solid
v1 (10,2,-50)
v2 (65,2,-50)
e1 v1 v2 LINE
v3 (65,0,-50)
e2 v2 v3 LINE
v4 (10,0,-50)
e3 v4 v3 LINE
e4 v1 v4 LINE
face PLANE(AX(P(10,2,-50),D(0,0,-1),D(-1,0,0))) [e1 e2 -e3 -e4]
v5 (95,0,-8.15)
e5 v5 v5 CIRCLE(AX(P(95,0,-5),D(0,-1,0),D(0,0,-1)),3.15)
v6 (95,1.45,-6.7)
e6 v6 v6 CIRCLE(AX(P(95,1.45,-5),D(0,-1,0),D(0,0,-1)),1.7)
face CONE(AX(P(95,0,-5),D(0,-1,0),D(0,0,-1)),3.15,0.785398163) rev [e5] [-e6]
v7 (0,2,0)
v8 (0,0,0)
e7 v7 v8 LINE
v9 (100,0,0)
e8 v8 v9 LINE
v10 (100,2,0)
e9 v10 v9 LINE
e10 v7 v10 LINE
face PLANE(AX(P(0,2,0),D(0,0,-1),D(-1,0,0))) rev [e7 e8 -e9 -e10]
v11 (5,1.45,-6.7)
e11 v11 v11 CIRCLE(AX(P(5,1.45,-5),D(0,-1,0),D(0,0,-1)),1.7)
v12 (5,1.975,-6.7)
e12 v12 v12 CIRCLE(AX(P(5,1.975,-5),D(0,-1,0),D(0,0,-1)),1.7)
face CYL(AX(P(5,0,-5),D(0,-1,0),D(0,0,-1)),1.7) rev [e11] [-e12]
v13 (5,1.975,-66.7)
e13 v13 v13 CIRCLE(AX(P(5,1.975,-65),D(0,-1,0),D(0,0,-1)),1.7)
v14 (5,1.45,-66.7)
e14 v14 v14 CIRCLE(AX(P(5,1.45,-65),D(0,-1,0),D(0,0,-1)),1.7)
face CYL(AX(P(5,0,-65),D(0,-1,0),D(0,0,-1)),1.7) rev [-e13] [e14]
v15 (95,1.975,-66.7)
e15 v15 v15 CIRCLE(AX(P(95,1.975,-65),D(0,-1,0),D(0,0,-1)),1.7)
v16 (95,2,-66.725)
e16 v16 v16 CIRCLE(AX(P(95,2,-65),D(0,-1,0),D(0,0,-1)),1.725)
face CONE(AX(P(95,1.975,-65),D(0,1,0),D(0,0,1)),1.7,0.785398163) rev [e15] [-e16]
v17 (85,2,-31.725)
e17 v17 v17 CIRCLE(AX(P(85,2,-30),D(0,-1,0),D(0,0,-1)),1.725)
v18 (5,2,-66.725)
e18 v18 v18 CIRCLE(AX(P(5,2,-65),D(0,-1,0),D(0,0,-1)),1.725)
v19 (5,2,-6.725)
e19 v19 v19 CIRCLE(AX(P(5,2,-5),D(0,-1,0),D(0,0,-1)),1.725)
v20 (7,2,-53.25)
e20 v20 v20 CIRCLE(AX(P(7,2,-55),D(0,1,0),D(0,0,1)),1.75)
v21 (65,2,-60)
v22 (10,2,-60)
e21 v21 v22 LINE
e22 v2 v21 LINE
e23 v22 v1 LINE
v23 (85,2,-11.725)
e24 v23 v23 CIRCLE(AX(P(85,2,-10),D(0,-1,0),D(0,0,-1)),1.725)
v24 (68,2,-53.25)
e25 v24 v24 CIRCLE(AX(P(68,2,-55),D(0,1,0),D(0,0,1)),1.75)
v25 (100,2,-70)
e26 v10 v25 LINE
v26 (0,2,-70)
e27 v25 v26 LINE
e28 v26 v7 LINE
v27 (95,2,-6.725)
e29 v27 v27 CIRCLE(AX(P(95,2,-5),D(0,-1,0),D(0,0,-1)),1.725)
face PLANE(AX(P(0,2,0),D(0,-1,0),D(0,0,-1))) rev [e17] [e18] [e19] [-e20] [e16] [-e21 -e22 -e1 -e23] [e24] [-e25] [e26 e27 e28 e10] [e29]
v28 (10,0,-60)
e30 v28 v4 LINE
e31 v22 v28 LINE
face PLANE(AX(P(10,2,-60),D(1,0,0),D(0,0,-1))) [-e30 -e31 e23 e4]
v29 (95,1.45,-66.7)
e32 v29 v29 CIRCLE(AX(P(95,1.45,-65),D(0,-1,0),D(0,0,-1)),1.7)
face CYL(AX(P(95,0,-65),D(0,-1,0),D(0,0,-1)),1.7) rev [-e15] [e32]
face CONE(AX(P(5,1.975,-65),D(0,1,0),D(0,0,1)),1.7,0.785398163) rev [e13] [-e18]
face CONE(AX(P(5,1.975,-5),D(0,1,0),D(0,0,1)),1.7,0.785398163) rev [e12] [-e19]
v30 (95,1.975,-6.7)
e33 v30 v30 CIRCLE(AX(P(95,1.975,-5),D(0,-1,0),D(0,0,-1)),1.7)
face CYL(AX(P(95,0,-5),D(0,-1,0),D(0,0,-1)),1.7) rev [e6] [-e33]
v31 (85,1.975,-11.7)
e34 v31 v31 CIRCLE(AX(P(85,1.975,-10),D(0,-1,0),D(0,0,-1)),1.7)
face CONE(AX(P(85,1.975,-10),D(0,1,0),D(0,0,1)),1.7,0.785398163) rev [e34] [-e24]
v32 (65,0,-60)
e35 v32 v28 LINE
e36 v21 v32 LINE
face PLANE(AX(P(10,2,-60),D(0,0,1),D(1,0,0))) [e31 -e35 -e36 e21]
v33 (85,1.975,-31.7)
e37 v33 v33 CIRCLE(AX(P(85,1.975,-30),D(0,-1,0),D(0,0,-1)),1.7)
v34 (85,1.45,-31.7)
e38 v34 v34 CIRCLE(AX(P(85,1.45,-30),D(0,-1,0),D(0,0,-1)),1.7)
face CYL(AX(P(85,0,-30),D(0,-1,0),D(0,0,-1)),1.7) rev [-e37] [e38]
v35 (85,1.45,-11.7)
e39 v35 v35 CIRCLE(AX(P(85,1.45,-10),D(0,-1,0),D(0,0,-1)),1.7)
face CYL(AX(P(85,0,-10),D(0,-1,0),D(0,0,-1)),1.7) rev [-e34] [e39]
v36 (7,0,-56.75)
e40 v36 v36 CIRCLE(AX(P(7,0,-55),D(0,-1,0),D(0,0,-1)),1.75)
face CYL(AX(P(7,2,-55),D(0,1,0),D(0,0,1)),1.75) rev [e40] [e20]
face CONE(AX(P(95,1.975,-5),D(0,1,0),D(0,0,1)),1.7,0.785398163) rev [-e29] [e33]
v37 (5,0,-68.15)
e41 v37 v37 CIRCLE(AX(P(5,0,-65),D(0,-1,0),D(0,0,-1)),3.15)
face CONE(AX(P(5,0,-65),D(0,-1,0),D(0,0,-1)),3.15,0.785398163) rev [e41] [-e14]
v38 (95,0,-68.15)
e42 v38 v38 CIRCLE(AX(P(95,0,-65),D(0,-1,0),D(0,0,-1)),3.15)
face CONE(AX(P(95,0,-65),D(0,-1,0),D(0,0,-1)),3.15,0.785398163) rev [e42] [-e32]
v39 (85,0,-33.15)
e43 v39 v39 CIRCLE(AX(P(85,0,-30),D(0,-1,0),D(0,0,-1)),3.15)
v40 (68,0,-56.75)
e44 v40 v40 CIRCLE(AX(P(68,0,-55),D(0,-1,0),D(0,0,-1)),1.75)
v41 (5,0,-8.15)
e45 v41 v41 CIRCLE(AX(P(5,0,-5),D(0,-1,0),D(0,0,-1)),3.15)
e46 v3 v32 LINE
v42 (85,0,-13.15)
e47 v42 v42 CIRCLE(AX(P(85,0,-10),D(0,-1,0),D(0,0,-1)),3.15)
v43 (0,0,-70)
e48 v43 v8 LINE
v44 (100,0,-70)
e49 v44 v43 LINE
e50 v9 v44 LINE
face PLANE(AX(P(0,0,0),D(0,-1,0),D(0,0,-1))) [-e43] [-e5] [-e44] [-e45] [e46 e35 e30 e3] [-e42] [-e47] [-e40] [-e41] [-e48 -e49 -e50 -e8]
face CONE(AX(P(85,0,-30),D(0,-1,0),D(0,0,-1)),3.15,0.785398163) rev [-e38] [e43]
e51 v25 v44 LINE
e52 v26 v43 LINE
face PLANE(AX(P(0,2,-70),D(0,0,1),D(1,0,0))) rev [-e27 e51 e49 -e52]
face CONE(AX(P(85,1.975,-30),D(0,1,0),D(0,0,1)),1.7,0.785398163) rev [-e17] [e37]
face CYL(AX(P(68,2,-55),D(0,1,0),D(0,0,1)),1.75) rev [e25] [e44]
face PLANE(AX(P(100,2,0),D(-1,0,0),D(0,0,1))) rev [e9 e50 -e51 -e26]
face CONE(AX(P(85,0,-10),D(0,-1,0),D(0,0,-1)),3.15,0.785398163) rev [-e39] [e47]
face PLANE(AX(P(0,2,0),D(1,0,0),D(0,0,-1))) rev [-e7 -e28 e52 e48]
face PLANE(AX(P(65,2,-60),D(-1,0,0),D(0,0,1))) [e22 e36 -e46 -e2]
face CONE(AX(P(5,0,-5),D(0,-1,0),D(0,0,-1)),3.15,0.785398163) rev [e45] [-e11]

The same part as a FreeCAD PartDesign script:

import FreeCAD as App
import Part
import Sketcher
from FreeCAD import Vector
Q = App.Units.Quantity

doc = App.newDocument("Part")
body = doc.addObject("PartDesign::Body", "Body")

# Sketch on XZ plane
sketch1 = doc.addObject("Sketcher::SketchObject", "Sketch")
body.addObject(sketch1)
sketch1.AttachmentSupport = (doc.XZ_Plane, [""])
sketch1.MapMode = "FlatFace"
sketch1.addGeometry([
    Part.LineSegment(Vector(0, -70, 0), Vector(0, 0, 0)),  # 0
    Part.LineSegment(Vector(0, 0, 0), Vector(100, 0, 0)),  # 1
    Part.LineSegment(Vector(100, 0, 0), Vector(100, -70, 0)),  # 2
    Part.LineSegment(Vector(100, -70, 0), Vector(0, -70, 0)),  # 3
    Part.LineSegment(Vector(65, -50, 0), Vector(10, -50, 0)),  # 4
    Part.LineSegment(Vector(10, -50, 0), Vector(10, -60, 0)),  # 5
    Part.LineSegment(Vector(10, -60, 0), Vector(65, -60, 0)),  # 6
    Part.LineSegment(Vector(65, -60, 0), Vector(65, -50, 0)),  # 7
], False)
sketch1.addConstraint([
    Sketcher.Constraint("Coincident", 0, 2, 1, 1),
    Sketcher.Constraint("Coincident", 1, 2, 2, 1),
    Sketcher.Constraint("Coincident", 2, 2, 3, 1),
    Sketcher.Constraint("Coincident", 3, 2, 0, 1),
    Sketcher.Constraint("Coincident", 4, 2, 5, 1),
    Sketcher.Constraint("Coincident", 5, 2, 6, 1),
    Sketcher.Constraint("Coincident", 6, 2, 7, 1),
    Sketcher.Constraint("Coincident", 7, 2, 4, 1),
    Sketcher.Constraint("Vertical", 0),
    Sketcher.Constraint("Horizontal", 1),
    Sketcher.Constraint("Vertical", 2),
    Sketcher.Constraint("Horizontal", 3),
    Sketcher.Constraint("Horizontal", 4),
    Sketcher.Constraint("Vertical", 5),
    Sketcher.Constraint("Horizontal", 6),
    Sketcher.Constraint("Vertical", 7),
    Sketcher.Constraint("Coincident", 0, 2, -1, 1),
    Sketcher.Constraint("DistanceX", 1, 1, 1, 2, 100.0),
    Sketcher.Constraint("DistanceX", 4, 2, 4, 1, 55.0),
    Sketcher.Constraint("DistanceY", 0, 1, 0, 2, 70.0),
    Sketcher.Constraint("DistanceY", 5, 2, 5, 1, 10.0),
    Sketcher.Constraint("DistanceX", -1, 1, 4, 2, 10.0),
    Sketcher.Constraint("DistanceY", 4, 2, -1, 1, 50.0),
])
pad1 = doc.addObject("PartDesign::Pad", "Pad")
body.addObject(pad1)
pad1.Profile = sketch1
pad1.Length = 2
pad1.Reversed = True

# Sketch on XZ plane
sketch2 = doc.addObject("Sketcher::SketchObject", "Sketch001")
body.addObject(sketch2)
sketch2.AttachmentSupport = (doc.XZ_Plane, [""])
sketch2.MapMode = "FlatFace"
sketch2.AttachmentOffset = App.Placement(Vector(0, 0, -2), App.Rotation())
sketch2.addGeometry([
    Part.Circle(Vector(7, -55, 0), Vector(0, 0, 1), 1.8),
    Part.Circle(Vector(68, -55, 0), Vector(0, 0, 1), 1.8),
], False)
sketch2.addConstraint([
    Sketcher.Constraint("Equal", 0, 1),
    Sketcher.Constraint("Horizontal", 0, 3, 1, 3),
    Sketcher.Constraint("Diameter", 0, 3.5),
    Sketcher.Constraint("DistanceX", -1, 1, 0, 3, 7.0),
    Sketcher.Constraint("DistanceY", 0, 3, -1, 1, 55.0),
    Sketcher.Constraint("DistanceX", -1, 1, 1, 3, 68.0),
])
doc.recompute()
hole = doc.addObject("PartDesign::Hole", "Hole")
body.addObject(hole)
hole.Profile = sketch2
hole.ThreadType = "None"
hole.Diameter = 3.5
hole.DepthType = "ThroughAll"
hole.Reversed = True

# Sketch on YZ plane
sketch3 = doc.addObject("Sketcher::SketchObject", "Sketch002")
body.addObject(sketch3)
sketch3.AttachmentSupport = (doc.YZ_Plane, [""])
sketch3.MapMode = "FlatFace"
sketch3.AttachmentOffset = App.Placement(Vector(0, 0, 5), App.Rotation())
sketch3.addGeometry([
    Part.LineSegment(Vector(2, -5, 0), Vector(0, -5, 0)),  # 0
    Part.LineSegment(Vector(0, -5, 0), Vector(0, -8.15, 0)),  # 1
    Part.LineSegment(Vector(0, -8.15, 0), Vector(1.45, -6.7, 0)),  # 2
    Part.LineSegment(Vector(1.45, -6.7, 0), Vector(1.975, -6.7, 0)),  # 3
    Part.LineSegment(Vector(1.975, -6.7, 0), Vector(2, -6.725, 0)),  # 4
    Part.LineSegment(Vector(2, -6.725, 0), Vector(2, -5, 0)),  # 5
], False)
sketch3.addGeometry(Part.LineSegment(Vector(0, -5, 0), Vector(2, -5, 0)), True)  # axis
sketch3.addConstraint([
    Sketcher.Constraint("Coincident", 0, 2, 1, 1),
    Sketcher.Constraint("Coincident", 1, 2, 2, 1),
    Sketcher.Constraint("Coincident", 2, 2, 3, 1),
    Sketcher.Constraint("Coincident", 3, 2, 4, 1),
    Sketcher.Constraint("Coincident", 4, 2, 5, 1),
    Sketcher.Constraint("Coincident", 5, 2, 0, 1),
    Sketcher.Constraint("Horizontal", 0),
    Sketcher.Constraint("Vertical", 1),
    Sketcher.Constraint("Horizontal", 3),
    Sketcher.Constraint("Vertical", 5),
    Sketcher.Constraint("Horizontal", 6),
    Sketcher.Constraint("Coincident", 6, 1, 0, 2),
    Sketcher.Constraint("PointOnObject", 0, 2, -2),
    Sketcher.Constraint("Perpendicular", 2, 4),
    Sketcher.Constraint("Vertical", 4, 2, 6, 2),
    Sketcher.Constraint("DistanceX", 0, 2, 0, 1, 2.0),
    Sketcher.Constraint("Angle", 2, Q("45 deg")),
    Sketcher.Constraint("DistanceY", 0, 2, -1, 1, 5.0),
    Sketcher.Constraint("DistanceY", 1, 2, 1, 1, 3.15),
    Sketcher.Constraint("DistanceY", 2, 2, -1, 1, 6.7),
    Sketcher.Constraint("DistanceX", 3, 1, 3, 2, 0.525),
])
groove = doc.addObject("PartDesign::Groove", "Groove")
body.addObject(groove)
groove.Profile = sketch3
groove.ReferenceAxis = (sketch3, ["Axis0"])
groove.Angle = 360
doc.recompute()

linearpattern = doc.addObject("PartDesign::LinearPattern", "LinearPattern")
body.addObject(linearpattern)
linearpattern.Originals = [groove]
linearpattern.Direction = (doc.X_Axis, [""])
linearpattern.Mode = "offset"
linearpattern.Offset = 90
linearpattern.Occurrences = 2
body.Tip = linearpattern
doc.recompute()

datumline = doc.addObject("PartDesign::Line", "DatumLine")
body.addObject(datumline)
datumline.Placement = App.Placement(Vector(0, 0, 0), App.Rotation(Vector(0, 0, 1), Vector(0.832050294, 0, -0.554700196)))
linearpattern2 = doc.addObject("PartDesign::LinearPattern", "LinearPattern001")
body.addObject(linearpattern2)
linearpattern2.Originals = [groove]
linearpattern2.Direction = (datumline, [""])
linearpattern2.Mode = "offset"
linearpattern2.Offset = 108.166538
linearpattern2.Occurrences = 2
body.Tip = linearpattern2
doc.recompute()

linearpattern3 = doc.addObject("PartDesign::LinearPattern", "LinearPattern002")
body.addObject(linearpattern3)
linearpattern3.Originals = [groove]
linearpattern3.Direction = (doc.Z_Axis, [""])
linearpattern3.Mode = "offset"
linearpattern3.Offset = 60
linearpattern3.Occurrences = 2
linearpattern3.Reversed = True
body.Tip = linearpattern3

# Sketch on YZ plane
sketch4 = doc.addObject("Sketcher::SketchObject", "Sketch003")
body.addObject(sketch4)
sketch4.AttachmentSupport = (doc.YZ_Plane, [""])
sketch4.MapMode = "FlatFace"
sketch4.AttachmentOffset = App.Placement(Vector(0, 0, 85), App.Rotation())
sketch4.addGeometry([
    Part.LineSegment(Vector(2, -10, 0), Vector(0, -10, 0)),  # 0
    Part.LineSegment(Vector(0, -10, 0), Vector(0, -13.15, 0)),  # 1
    Part.LineSegment(Vector(0, -13.15, 0), Vector(1.45, -11.7, 0)),  # 2
    Part.LineSegment(Vector(1.45, -11.7, 0), Vector(1.975, -11.7, 0)),  # 3
    Part.LineSegment(Vector(1.975, -11.7, 0), Vector(2, -11.725, 0)),  # 4
    Part.LineSegment(Vector(2, -11.725, 0), Vector(2, -10, 0)),  # 5
], False)
sketch4.addGeometry(Part.LineSegment(Vector(0, -10, 0), Vector(2, -10, 0)), True)  # axis
sketch4.addConstraint([
    Sketcher.Constraint("Coincident", 0, 2, 1, 1),
    Sketcher.Constraint("Coincident", 1, 2, 2, 1),
    Sketcher.Constraint("Coincident", 2, 2, 3, 1),
    Sketcher.Constraint("Coincident", 3, 2, 4, 1),
    Sketcher.Constraint("Coincident", 4, 2, 5, 1),
    Sketcher.Constraint("Coincident", 5, 2, 0, 1),
    Sketcher.Constraint("Horizontal", 0),
    Sketcher.Constraint("Vertical", 1),
    Sketcher.Constraint("Horizontal", 3),
    Sketcher.Constraint("Vertical", 5),
    Sketcher.Constraint("Horizontal", 6),
    Sketcher.Constraint("Coincident", 6, 1, 0, 2),
    Sketcher.Constraint("PointOnObject", 0, 2, -2),
    Sketcher.Constraint("Perpendicular", 2, 4),
    Sketcher.Constraint("Vertical", 4, 2, 6, 2),
    Sketcher.Constraint("DistanceX", 0, 2, 0, 1, 2.0),
    Sketcher.Constraint("Angle", 2, Q("45 deg")),
    Sketcher.Constraint("DistanceY", 0, 2, -1, 1, 10.0),
    Sketcher.Constraint("DistanceY", 1, 2, 1, 1, 3.15),
    Sketcher.Constraint("DistanceY", 2, 2, -1, 1, 11.7),
    Sketcher.Constraint("DistanceX", 3, 1, 3, 2, 0.525),
])
groove2 = doc.addObject("PartDesign::Groove", "Groove001")
body.addObject(groove2)
groove2.Profile = sketch4
groove2.ReferenceAxis = (sketch4, ["Axis0"])
groove2.Angle = 360
doc.recompute()

linearpattern4 = doc.addObject("PartDesign::LinearPattern", "LinearPattern003")
body.addObject(linearpattern4)
linearpattern4.Originals = [groove2]
linearpattern4.Direction = (doc.Z_Axis, [""])
linearpattern4.Mode = "offset"
linearpattern4.Offset = 20
linearpattern4.Occurrences = 2
linearpattern4.Reversed = True
body.Tip = linearpattern4

doc.recompute()
